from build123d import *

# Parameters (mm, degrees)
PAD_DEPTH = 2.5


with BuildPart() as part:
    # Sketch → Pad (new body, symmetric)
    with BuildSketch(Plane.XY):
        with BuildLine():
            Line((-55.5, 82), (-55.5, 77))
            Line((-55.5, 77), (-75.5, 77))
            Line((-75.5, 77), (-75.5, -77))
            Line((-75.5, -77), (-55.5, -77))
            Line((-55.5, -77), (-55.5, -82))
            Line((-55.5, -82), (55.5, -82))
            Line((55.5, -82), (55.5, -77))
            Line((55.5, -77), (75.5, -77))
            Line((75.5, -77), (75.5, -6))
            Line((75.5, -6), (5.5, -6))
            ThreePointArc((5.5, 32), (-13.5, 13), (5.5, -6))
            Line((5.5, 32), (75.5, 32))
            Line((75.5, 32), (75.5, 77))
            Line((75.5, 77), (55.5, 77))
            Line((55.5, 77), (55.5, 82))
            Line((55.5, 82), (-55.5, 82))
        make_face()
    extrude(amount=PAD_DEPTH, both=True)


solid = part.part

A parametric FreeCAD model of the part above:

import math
import FreeCAD as App
import Part
import Sketcher

V = App.Vector
Q = App.Units.Quantity

doc = App.newDocument("Part")
params = doc.addObject("Spreadsheet::Sheet", "Params")
for row, (alias, value) in enumerate([
    ("sketch1_radius", "19 mm"),
    ("sketch1_width", "20 mm"),
    ("sketch1_width2", "111 mm"),
    ("sketch1_width3", "70 mm"),
    ("sketch1_height", "5 mm"),
    ("pad1_length", "5 mm"),
], start=1):
    params.set(f"A{row}", alias)
    params.set(f"B{row}", "=" + value)
    params.setAlias(f"B{row}", alias)

body = doc.addObject("PartDesign::Body", "Body")

sketch1 = doc.addObject("Sketcher::SketchObject", "Sketch")
body.addObject(sketch1)
sketch1.AttachmentSupport = (doc.XY_Plane, [""])
sketch1.MapMode = "FlatFace"
sketch1.addGeometry([
    Part.LineSegment(V(-56, 82, 0), V(-56, 77, 0)),
    Part.LineSegment(V(-56, 77, 0), V(-76, 77, 0)),
    Part.LineSegment(V(-76, 77, 0), V(-76, -77, 0)),
    Part.LineSegment(V(-76, -77, 0), V(-56, -77, 0)),
    Part.LineSegment(V(-56, -77, 0), V(-56, -82, 0)),
    Part.LineSegment(V(-56, -82, 0), V(56, -82, 0)),
    Part.LineSegment(V(56, -82, 0), V(56, -77, 0)),
    Part.LineSegment(V(56, -77, 0), V(76, -77, 0)),
    Part.LineSegment(V(76, -77, 0), V(76, -6, 0)),
    Part.LineSegment(V(76, -6, 0), V(6, -6, 0)),
    Part.ArcOfCircle(Part.Circle(V(6, 13, 0), V(0, 0, 1), 19), math.radians(90), math.radians(270)),
    Part.LineSegment(V(6, 32, 0), V(76, 32, 0)),
    Part.LineSegment(V(76, 32, 0), V(76, 77, 0)),
    Part.LineSegment(V(76, 77, 0), V(56, 77, 0)),
    Part.LineSegment(V(56, 77, 0), V(56, 82, 0)),
    Part.LineSegment(V(56, 82, 0), V(-56, 82, 0)),
], False)
sketch1.addConstraint([
    Sketcher.Constraint("Coincident", 0, 2, 1, 1),
    Sketcher.Constraint("Coincident", 1, 2, 2, 1),
    Sketcher.Constraint("Coincident", 2, 2, 3, 1),
    Sketcher.Constraint("Coincident", 3, 2, 4, 1),
    Sketcher.Constraint("Coincident", 4, 2, 5, 1),
    Sketcher.Constraint("Coincident", 5, 2, 6, 1),
    Sketcher.Constraint("Coincident", 6, 2, 7, 1),
    Sketcher.Constraint("Coincident", 7, 2, 8, 1),
    Sketcher.Constraint("Coincident", 8, 2, 9, 1),
    Sketcher.Constraint("Tangent", 9, 2, 10, 2),
    Sketcher.Constraint("Tangent", 10, 1, 11, 1),
    Sketcher.Constraint("Coincident", 11, 2, 12, 1),
    Sketcher.Constraint("Coincident", 12, 2, 13, 1),
    Sketcher.Constraint("Coincident", 13, 2, 14, 1),
    Sketcher.Constraint("Coincident", 14, 2, 15, 1),
    Sketcher.Constraint("Coincident", 15, 2, 0, 1),
    Sketcher.Constraint("Vertical", 0),
    Sketcher.Constraint("Horizontal", 1),
    Sketcher.Constraint("Vertical", 2),
    Sketcher.Constraint("Horizontal", 3),
    Sketcher.Constraint("Vertical", 4),
    Sketcher.Constraint("Horizontal", 5),
    Sketcher.Constraint("Vertical", 6),
    Sketcher.Constraint("Horizontal", 7),
    Sketcher.Constraint("Vertical", 8),
    Sketcher.Constraint("Horizontal", 9),
    Sketcher.Constraint("Horizontal", 11),
    Sketcher.Constraint("Vertical", 12),
    Sketcher.Constraint("Horizontal", 13),
    Sketcher.Constraint("Vertical", 14),
    Sketcher.Constraint("Horizontal", 15),
    Sketcher.Constraint("Symmetric", 0, 2, 6, 2, -1, 1),
    Sketcher.Constraint("Symmetric", 2, 2, 12, 2, -1, 1),
    Sketcher.Constraint("Symmetric", 4, 2, 14, 2, -1, 1),
    Sketcher.Constraint("Symmetric", 3, 2, 6, 2, -2),
    Sketcher.Constraint("Vertical", 8, 2, 11, 2),
    Sketcher.Constraint("Radius", 10, Q("19 mm")),
    Sketcher.Constraint("DistanceX", 1, 2, 1, 1, Q("20 mm")),
    Sketcher.Constraint("DistanceX", 5, 1, 5, 2, Q("111 mm")),
    Sketcher.Constraint("DistanceX", 9, 2, 9, 1, Q("70 mm")),
    Sketcher.Constraint("DistanceY", 0, 2, 0, 1, Q("5 mm")),
    Sketcher.Constraint("DistanceY", 2, 2, 2, 1, Q("154 mm")),
    Sketcher.Constraint("DistanceY", 8, 1, 8, 2, Q("71 mm")),
])
sketch1.setExpression("Constraints[36]", "Params.sketch1_radius")
sketch1.setExpression("Constraints[37]", "Params.sketch1_width")
sketch1.setExpression("Constraints[38]", "Params.sketch1_width2")
sketch1.setExpression("Constraints[39]", "Params.sketch1_width3")
sketch1.setExpression("Constraints[40]", "Params.sketch1_height")
pad1 = doc.addObject("PartDesign::Pad", "Pad")
body.addObject(pad1)
pad1.Profile = sketch1
pad1.setExpression("Length", "Params.pad1_length")
pad1.Midplane = True

doc.recompute()
